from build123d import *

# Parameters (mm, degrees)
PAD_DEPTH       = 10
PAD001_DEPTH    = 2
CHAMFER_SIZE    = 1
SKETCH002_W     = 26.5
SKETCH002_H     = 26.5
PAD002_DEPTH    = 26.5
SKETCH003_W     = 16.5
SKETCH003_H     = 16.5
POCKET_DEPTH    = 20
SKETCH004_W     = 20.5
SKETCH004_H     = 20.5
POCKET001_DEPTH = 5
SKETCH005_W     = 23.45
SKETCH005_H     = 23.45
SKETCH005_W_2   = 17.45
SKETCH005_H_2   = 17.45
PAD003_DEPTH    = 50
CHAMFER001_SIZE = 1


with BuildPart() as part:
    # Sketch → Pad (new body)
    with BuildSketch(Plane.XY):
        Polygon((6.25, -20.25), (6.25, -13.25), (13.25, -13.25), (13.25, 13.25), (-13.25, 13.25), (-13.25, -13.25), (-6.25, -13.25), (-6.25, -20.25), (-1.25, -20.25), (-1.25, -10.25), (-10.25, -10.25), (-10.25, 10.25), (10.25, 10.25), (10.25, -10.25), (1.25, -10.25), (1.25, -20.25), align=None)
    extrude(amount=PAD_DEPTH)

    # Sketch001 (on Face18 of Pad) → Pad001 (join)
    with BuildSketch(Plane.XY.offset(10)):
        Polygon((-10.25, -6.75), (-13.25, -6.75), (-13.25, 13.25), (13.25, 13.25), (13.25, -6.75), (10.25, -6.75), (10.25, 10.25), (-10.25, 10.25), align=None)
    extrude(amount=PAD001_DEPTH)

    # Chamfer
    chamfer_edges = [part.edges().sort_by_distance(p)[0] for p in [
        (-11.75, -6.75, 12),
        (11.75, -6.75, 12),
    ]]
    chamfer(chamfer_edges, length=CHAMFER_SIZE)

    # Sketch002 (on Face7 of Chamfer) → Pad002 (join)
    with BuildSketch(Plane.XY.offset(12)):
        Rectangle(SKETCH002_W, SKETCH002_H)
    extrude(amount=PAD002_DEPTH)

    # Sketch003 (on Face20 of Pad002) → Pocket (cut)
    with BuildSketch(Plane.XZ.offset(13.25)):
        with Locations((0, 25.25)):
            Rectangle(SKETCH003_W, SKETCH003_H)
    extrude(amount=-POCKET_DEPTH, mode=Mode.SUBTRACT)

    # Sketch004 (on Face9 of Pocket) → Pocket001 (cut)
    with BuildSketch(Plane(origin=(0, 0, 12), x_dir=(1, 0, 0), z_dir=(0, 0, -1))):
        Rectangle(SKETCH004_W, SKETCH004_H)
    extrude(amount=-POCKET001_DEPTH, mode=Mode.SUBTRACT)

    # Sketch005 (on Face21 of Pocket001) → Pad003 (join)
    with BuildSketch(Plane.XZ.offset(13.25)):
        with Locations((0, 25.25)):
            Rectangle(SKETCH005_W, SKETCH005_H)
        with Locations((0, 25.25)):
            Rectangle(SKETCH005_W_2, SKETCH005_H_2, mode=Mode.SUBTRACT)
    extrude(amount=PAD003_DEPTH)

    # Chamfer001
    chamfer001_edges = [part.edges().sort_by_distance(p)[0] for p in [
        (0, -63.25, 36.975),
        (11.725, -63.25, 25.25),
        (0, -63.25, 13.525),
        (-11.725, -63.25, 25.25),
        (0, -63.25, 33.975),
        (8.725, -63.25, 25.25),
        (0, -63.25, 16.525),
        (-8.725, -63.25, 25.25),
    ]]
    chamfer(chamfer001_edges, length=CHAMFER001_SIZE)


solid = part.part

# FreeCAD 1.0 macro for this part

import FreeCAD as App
import Part
import Sketcher


def edges_at(feature, points):
    """Names of the edges that pass closest to the given points."""
    edges = feature.Shape.Edges
    near = lambda p: min(range(len(edges)), key=lambda i: edges[i].distToShape(Part.Vertex(*p))[0])
    return sorted({f"Edge{near(p) + 1}" for p in points})

doc = App.newDocument("Part")
body = doc.addObject("PartDesign::Body", "Body")

# Sketch on XY plane
sketch1 = body.newObject("Sketcher::SketchObject", "Sketch")
sketch1.AttachmentSupport = (doc.getObject("XY_Plane"), [""])
sketch1.MapMode = "FlatFace"
sketch1.addGeometry([
    Part.LineSegment(App.Vector(6.25, -20.25, 0), App.Vector(6.25, -13.25, 0)),  # 0
    Part.LineSegment(App.Vector(6.25, -13.25, 0), App.Vector(13.25, -13.25, 0)),  # 1
    Part.LineSegment(App.Vector(13.25, -13.25, 0), App.Vector(13.25, 13.25, 0)),  # 2
    Part.LineSegment(App.Vector(13.25, 13.25, 0), App.Vector(-13.25, 13.25, 0)),  # 3
    Part.LineSegment(App.Vector(-13.25, 13.25, 0), App.Vector(-13.25, -13.25, 0)),  # 4
    Part.LineSegment(App.Vector(-13.25, -13.25, 0), App.Vector(-6.25, -13.25, 0)),  # 5
    Part.LineSegment(App.Vector(-6.25, -13.25, 0), App.Vector(-6.25, -20.25, 0)),  # 6
    Part.LineSegment(App.Vector(-6.25, -20.25, 0), App.Vector(-1.25, -20.25, 0)),  # 7
    Part.LineSegment(App.Vector(-1.25, -20.25, 0), App.Vector(-1.25, -10.25, 0)),  # 8
    Part.LineSegment(App.Vector(-1.25, -10.25, 0), App.Vector(-10.25, -10.25, 0)),  # 9
    Part.LineSegment(App.Vector(-10.25, -10.25, 0), App.Vector(-10.25, 10.25, 0)),  # 10
    Part.LineSegment(App.Vector(-10.25, 10.25, 0), App.Vector(10.25, 10.25, 0)),  # 11
    Part.LineSegment(App.Vector(10.25, 10.25, 0), App.Vector(10.25, -10.25, 0)),  # 12
    Part.LineSegment(App.Vector(10.25, -10.25, 0), App.Vector(1.25, -10.25, 0)),  # 13
    Part.LineSegment(App.Vector(1.25, -10.25, 0), App.Vector(1.25, -20.25, 0)),  # 14
    Part.LineSegment(App.Vector(1.25, -20.25, 0), App.Vector(6.25, -20.25, 0)),  # 15
], False)
sketch1.addConstraint([
    Sketcher.Constraint("Coincident", 0, 2, 1, 1),
    Sketcher.Constraint("Coincident", 1, 2, 2, 1),
    Sketcher.Constraint("Coincident", 2, 2, 3, 1),
    Sketcher.Constraint("Coincident", 3, 2, 4, 1),
    Sketcher.Constraint("Coincident", 4, 2, 5, 1),
    Sketcher.Constraint("Coincident", 5, 2, 6, 1),
    Sketcher.Constraint("Coincident", 6, 2, 7, 1),
    Sketcher.Constraint("Coincident", 7, 2, 8, 1),
    Sketcher.Constraint("Coincident", 8, 2, 9, 1),
    Sketcher.Constraint("Coincident", 9, 2, 10, 1),
    Sketcher.Constraint("Coincident", 10, 2, 11, 1),
    Sketcher.Constraint("Coincident", 11, 2, 12, 1),
    Sketcher.Constraint("Coincident", 12, 2, 13, 1),
    Sketcher.Constraint("Coincident", 13, 2, 14, 1),
    Sketcher.Constraint("Coincident", 14, 2, 15, 1),
    Sketcher.Constraint("Coincident", 15, 2, 0, 1),
    Sketcher.Constraint("Vertical", 0),
    Sketcher.Constraint("Horizontal", 1),
    Sketcher.Constraint("Vertical", 2),
    Sketcher.Constraint("Horizontal", 3),
    Sketcher.Constraint("Vertical", 4),
    Sketcher.Constraint("Horizontal", 5),
    Sketcher.Constraint("Vertical", 6),
    Sketcher.Constraint("Horizontal", 7),
    Sketcher.Constraint("Vertical", 8),
    Sketcher.Constraint("Horizontal", 9),
    Sketcher.Constraint("Vertical", 10),
    Sketcher.Constraint("Horizontal", 11),
    Sketcher.Constraint("Vertical", 12),
    Sketcher.Constraint("Horizontal", 13),
    Sketcher.Constraint("Vertical", 14),
    Sketcher.Constraint("Horizontal", 15),
    Sketcher.Constraint("Symmetric", 1, 2, 3, 2, -1, 1),
    Sketcher.Constraint("Symmetric", 9, 2, 11, 2, -1, 1),
    Sketcher.Constraint("Symmetric", 0, 2, 5, 2, -2),
    Sketcher.Constraint("Symmetric", 8, 2, 13, 2, -2),
    Sketcher.Constraint("Horizontal", 7, 2, 14, 2),
    Sketcher.Constraint("Equal", 5, 0),
    Sketcher.Constraint("Equal", 3, 2),
    Sketcher.Constraint("Equal", 11, 10),
    Sketcher.Constraint("DistanceX", 1, 1, 1, 2, 7.0),
    Sketcher.Constraint("DistanceX", 7, 1, 7, 2, 5.0),
    Sketcher.Constraint("DistanceX", 9, 2, 9, 1, 9.0),
    Sketcher.Constraint("DistanceX", 3, 2, 3, 1, 26.5),
])
pad1 = body.newObject("PartDesign::Pad", "Pad")
pad1.Profile = sketch1
pad1.Length = 10

# Sketch on XY plane
sketch2 = body.newObject("Sketcher::SketchObject", "Sketch001")
sketch2.AttachmentSupport = (doc.getObject("XY_Plane"), [""])
sketch2.MapMode = "FlatFace"
sketch2.AttachmentOffset = App.Placement(App.Vector(0, 0, 10), App.Rotation())
sketch2.addGeometry([
    Part.LineSegment(App.Vector(-13.25, -6.75, 0), App.Vector(-10.25, -6.75, 0)),  # 0
    Part.LineSegment(App.Vector(-10.25, -6.75, 0), App.Vector(-10.25, 10.25, 0)),  # 1
    Part.LineSegment(App.Vector(-10.25, 10.25, 0), App.Vector(10.25, 10.25, 0)),  # 2
    Part.LineSegment(App.Vector(10.25, 10.25, 0), App.Vector(10.25, -6.75, 0)),  # 3
    Part.LineSegment(App.Vector(10.25, -6.75, 0), App.Vector(13.25, -6.75, 0)),  # 4
    Part.LineSegment(App.Vector(13.25, -6.75, 0), App.Vector(13.25, 13.25, 0)),  # 5
    Part.LineSegment(App.Vector(13.25, 13.25, 0), App.Vector(-13.25, 13.25, 0)),  # 6
    Part.LineSegment(App.Vector(-13.25, 13.25, 0), App.Vector(-13.25, -6.75, 0)),  # 7
], False)
sketch2.addConstraint([
    Sketcher.Constraint("Coincident", 0, 2, 1, 1),
    Sketcher.Constraint("Coincident", 1, 2, 2, 1),
    Sketcher.Constraint("Coincident", 2, 2, 3, 1),
    Sketcher.Constraint("Coincident", 3, 2, 4, 1),
    Sketcher.Constraint("Coincident", 4, 2, 5, 1),
    Sketcher.Constraint("Coincident", 5, 2, 6, 1),
    Sketcher.Constraint("Coincident", 6, 2, 7, 1),
    Sketcher.Constraint("Coincident", 7, 2, 0, 1),
    Sketcher.Constraint("Horizontal", 0),
    Sketcher.Constraint("Vertical", 1),
    Sketcher.Constraint("Horizontal", 2),
    Sketcher.Constraint("Vertical", 3),
    Sketcher.Constraint("Horizontal", 4),
    Sketcher.Constraint("Vertical", 5),
    Sketcher.Constraint("Horizontal", 6),
    Sketcher.Constraint("Vertical", 7),
    Sketcher.Constraint("Symmetric", 0, 2, 3, 2, -2),
    Sketcher.Constraint("Equal", 0, 4),
    Sketcher.Constraint("DistanceX", 0, 1, 0, 2, 3.0),
    Sketcher.Constraint("DistanceY", 1, 1, 1, 2, 17.0),
    Sketcher.Constraint("DistanceY", 5, 1, 5, 2, 20.0),
    Sketcher.Constraint("DistanceX", 2, 1, 2, 2, 20.5),
    Sketcher.Constraint("DistanceY", 0, 2, -1, 1, 6.75),
])
pad2 = body.newObject("PartDesign::Pad", "Pad001")
pad2.Profile = sketch2
pad2.Length = 2
doc.recompute()

chamfer = body.newObject("PartDesign::Chamfer", "Chamfer")
chamfer.Base = (pad2, edges_at(pad2, [(-11.75, -6.75, 12), (11.75, -6.75, 12)]))
chamfer.Size = 1

# Sketch on XY plane
sketch3 = body.newObject("Sketcher::SketchObject", "Sketch002")
sketch3.AttachmentSupport = (doc.getObject("XY_Plane"), [""])
sketch3.MapMode = "FlatFace"
sketch3.AttachmentOffset = App.Placement(App.Vector(0, 0, 12), App.Rotation())
sketch3.addGeometry([
    Part.LineSegment(App.Vector(-13.25, 13.25, 0), App.Vector(-13.25, -13.25, 0)),
    Part.LineSegment(App.Vector(-13.25, -13.25, 0), App.Vector(13.25, -13.25, 0)),
    Part.LineSegment(App.Vector(13.25, -13.25, 0), App.Vector(13.25, 13.25, 0)),
    Part.LineSegment(App.Vector(13.25, 13.25, 0), App.Vector(-13.25, 13.25, 0)),
], False)
sketch3.addConstraint([
    Sketcher.Constraint("Coincident", 0, 2, 1, 1),
    Sketcher.Constraint("Coincident", 1, 2, 2, 1),
    Sketcher.Constraint("Coincident", 2, 2, 3, 1),
    Sketcher.Constraint("Coincident", 3, 2, 0, 1),
    Sketcher.Constraint("Vertical", 0),
    Sketcher.Constraint("Horizontal", 1),
    Sketcher.Constraint("Vertical", 2),
    Sketcher.Constraint("Horizontal", 3),
    Sketcher.Constraint("Symmetric", 0, 2, 2, 2, -1, 1),
    Sketcher.Constraint("Equal", 3, 0),
    Sketcher.Constraint("DistanceX", 1, 1, 1, 2, 26.5),
])
pad3 = body.newObject("PartDesign::Pad", "Pad002")
pad3.Profile = sketch3
pad3.Length = 26.5

# Sketch on XZ plane
sketch4 = body.newObject("Sketcher::SketchObject", "Sketch003")
sketch4.AttachmentSupport = (doc.getObject("XZ_Plane"), [""])
sketch4.MapMode = "FlatFace"
sketch4.AttachmentOffset = App.Placement(App.Vector(0, 0, 13.25), App.Rotation())
sketch4.addGeometry([
    Part.LineSegment(App.Vector(-8.25, 33.5, 0), App.Vector(-8.25, 17, 0)),
    Part.LineSegment(App.Vector(-8.25, 17, 0), App.Vector(8.25, 17, 0)),
    Part.LineSegment(App.Vector(8.25, 17, 0), App.Vector(8.25, 33.5, 0)),
    Part.LineSegment(App.Vector(8.25, 33.5, 0), App.Vector(-8.25, 33.5, 0)),
], False)
sketch4.addConstraint([
    Sketcher.Constraint("Coincident", 0, 2, 1, 1),
    Sketcher.Constraint("Coincident", 1, 2, 2, 1),
    Sketcher.Constraint("Coincident", 2, 2, 3, 1),
    Sketcher.Constraint("Coincident", 3, 2, 0, 1),
    Sketcher.Constraint("Vertical", 0),
    Sketcher.Constraint("Horizontal", 1),
    Sketcher.Constraint("Vertical", 2),
    Sketcher.Constraint("Horizontal", 3),
    Sketcher.Constraint("Equal", 3, 0),
    Sketcher.Constraint("DistanceX", 1, 1, 1, 2, 16.5),
    Sketcher.Constraint("DistanceY", -1, 1, 0, 2, 17.0),
    Sketcher.Constraint("DistanceX", 0, 2, -1, 1, 8.25),
])
pocket1 = body.newObject("PartDesign::Pocket", "Pocket")
pocket1.Profile = sketch4
pocket1.Length = 20

# Sketch on XY plane
sketch5 = body.newObject("Sketcher::SketchObject", "Sketch004")
sketch5.AttachmentSupport = (doc.getObject("XY_Plane"), [""])
sketch5.MapMode = "FlatFace"
sketch5.AttachmentOffset = App.Placement(App.Vector(0, 0, 12), App.Rotation())
sketch5.addGeometry([
    Part.LineSegment(App.Vector(-10.25, -10.25, 0), App.Vector(-10.25, 10.25, 0)),
    Part.LineSegment(App.Vector(-10.25, 10.25, 0), App.Vector(10.25, 10.25, 0)),
    Part.LineSegment(App.Vector(10.25, 10.25, 0), App.Vector(10.25, -10.25, 0)),
    Part.LineSegment(App.Vector(10.25, -10.25, 0), App.Vector(-10.25, -10.25, 0)),
], False)
sketch5.addConstraint([
    Sketcher.Constraint("Coincident", 0, 2, 1, 1),
    Sketcher.Constraint("Coincident", 1, 2, 2, 1),
    Sketcher.Constraint("Coincident", 2, 2, 3, 1),
    Sketcher.Constraint("Coincident", 3, 2, 0, 1),
    Sketcher.Constraint("Vertical", 0),
    Sketcher.Constraint("Horizontal", 1),
    Sketcher.Constraint("Vertical", 2),
    Sketcher.Constraint("Horizontal", 3),
    Sketcher.Constraint("Symmetric", 0, 2, 2, 2, -1, 1),
    Sketcher.Constraint("Equal", 3, 0),
    Sketcher.Constraint("DistanceX", 1, 1, 1, 2, 20.5),
])
pocket2 = body.newObject("PartDesign::Pocket", "Pocket001")
pocket2.Profile = sketch5
pocket2.Length = 5
pocket2.Reversed = True

# Sketch on XZ plane
sketch6 = body.newObject("Sketcher::SketchObject", "Sketch005")
sketch6.AttachmentSupport = (doc.getObject("XZ_Plane"), [""])
sketch6.MapMode = "FlatFace"
sketch6.AttachmentOffset = App.Placement(App.Vector(0, 0, 13.25), App.Rotation())
sketch6.addGeometry([
    Part.LineSegment(App.Vector(-11.725, 36.975, 0), App.Vector(-11.725, 13.525, 0)),  # 0
    Part.LineSegment(App.Vector(-11.725, 13.525, 0), App.Vector(11.725, 13.525, 0)),  # 1
    Part.LineSegment(App.Vector(11.725, 13.525, 0), App.Vector(11.725, 36.975, 0)),  # 2
    Part.LineSegment(App.Vector(11.725, 36.975, 0), App.Vector(-11.725, 36.975, 0)),  # 3
    Part.LineSegment(App.Vector(8.725, 16.525, 0), App.Vector(-8.725, 16.525, 0)),  # 4
    Part.LineSegment(App.Vector(-8.725, 16.525, 0), App.Vector(-8.725, 33.975, 0)),  # 5
    Part.LineSegment(App.Vector(-8.725, 33.975, 0), App.Vector(8.725, 33.975, 0)),  # 6
    Part.LineSegment(App.Vector(8.725, 33.975, 0), App.Vector(8.725, 16.525, 0)),  # 7
], False)
sketch6.addConstraint([
    Sketcher.Constraint("Coincident", 0, 2, 1, 1),
    Sketcher.Constraint("Coincident", 1, 2, 2, 1),
    Sketcher.Constraint("Coincident", 2, 2, 3, 1),
    Sketcher.Constraint("Coincident", 3, 2, 0, 1),
    Sketcher.Constraint("Coincident", 4, 2, 5, 1),
    Sketcher.Constraint("Coincident", 5, 2, 6, 1),
    Sketcher.Constraint("Coincident", 6, 2, 7, 1),
    Sketcher.Constraint("Coincident", 7, 2, 4, 1),
    Sketcher.Constraint("Vertical", 0),
    Sketcher.Constraint("Horizontal", 1),
    Sketcher.Constraint("Vertical", 2),
    Sketcher.Constraint("Horizontal", 3),
    Sketcher.Constraint("Horizontal", 4),
    Sketcher.Constraint("Vertical", 5),
    Sketcher.Constraint("Horizontal", 6),
    Sketcher.Constraint("Vertical", 7),
    Sketcher.Constraint("Equal", 3, 0),
    Sketcher.Constraint("Equal", 6, 5),
    Sketcher.Constraint("DistanceX", 0, 2, 4, 2, 3.0),
    Sketcher.Constraint("DistanceY", 0, 2, 4, 2, 3.0),
    Sketcher.Constraint("DistanceY", 5, 2, 3, 2, 3.0),
    Sketcher.Constraint("DistanceX", 1, 1, 1, 2, 23.45),
    Sketcher.Constraint("DistanceX", 0, 2, -1, 1, 11.725),
    Sketcher.Constraint("DistanceY", -1, 1, 0, 2, 13.525),
])
pad4 = body.newObject("PartDesign::Pad", "Pad003")
pad4.Profile = sketch6
pad4.Length = 50
doc.recompute()

chamfer2 = body.newObject("PartDesign::Chamfer", "Chamfer001")
chamfer2.Base = (pad4, edges_at(pad4, [
    (0, -63.25, 36.975),
    (11.725, -63.25, 25.25),
    (0, -63.25, 13.525),
    (-11.725, -63.25, 25.25),
    (0, -63.25, 33.975),
    (8.725, -63.25, 25.25),
    (0, -63.25, 16.525),
    (-8.725, -63.25, 25.25),
]))
chamfer2.Size = 1

doc.recompute()
